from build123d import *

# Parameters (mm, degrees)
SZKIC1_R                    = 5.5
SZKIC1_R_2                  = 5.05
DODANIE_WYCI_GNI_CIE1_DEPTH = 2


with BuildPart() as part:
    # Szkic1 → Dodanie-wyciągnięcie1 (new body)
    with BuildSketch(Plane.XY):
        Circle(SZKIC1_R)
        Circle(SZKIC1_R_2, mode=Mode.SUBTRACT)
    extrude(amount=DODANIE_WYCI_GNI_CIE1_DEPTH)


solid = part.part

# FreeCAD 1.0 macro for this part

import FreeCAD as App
import Part
import Sketcher
from FreeCAD import Vector

doc = App.newDocument("Part")
body = doc.addObject("PartDesign::Body", "Body")

sketch1 = doc.addObject("Sketcher::SketchObject", "Sketch")
body.addObject(sketch1)
sketch1.AttachmentSupport = (doc.XY_Plane, [""])
sketch1.MapMode = "FlatFace"
sketch1.addGeometry(Part.Circle(Vector(0, 0, 0), Vector(0, 0, 1), 5.5), False)
sketch1.addGeometry(Part.Circle(Vector(0, 0, 0), Vector(0, 0, 1), 5.05), False)
sketch1.addConstraint(Sketcher.Constraint("Coincident", 0, 3, -1, 1))
sketch1.addConstraint(Sketcher.Constraint("Coincident", 1, 3, -1, 1))
sketch1.addConstraint(Sketcher.Constraint("Diameter", 0, 11.0))
sketch1.addConstraint(Sketcher.Constraint("Diameter", 1, 10.1))
pad1 = doc.addObject("PartDesign::Pad", "Pad")
body.addObject(pad1)
pad1.Profile = sketch1
pad1.Length = 2

doc.recompute()
